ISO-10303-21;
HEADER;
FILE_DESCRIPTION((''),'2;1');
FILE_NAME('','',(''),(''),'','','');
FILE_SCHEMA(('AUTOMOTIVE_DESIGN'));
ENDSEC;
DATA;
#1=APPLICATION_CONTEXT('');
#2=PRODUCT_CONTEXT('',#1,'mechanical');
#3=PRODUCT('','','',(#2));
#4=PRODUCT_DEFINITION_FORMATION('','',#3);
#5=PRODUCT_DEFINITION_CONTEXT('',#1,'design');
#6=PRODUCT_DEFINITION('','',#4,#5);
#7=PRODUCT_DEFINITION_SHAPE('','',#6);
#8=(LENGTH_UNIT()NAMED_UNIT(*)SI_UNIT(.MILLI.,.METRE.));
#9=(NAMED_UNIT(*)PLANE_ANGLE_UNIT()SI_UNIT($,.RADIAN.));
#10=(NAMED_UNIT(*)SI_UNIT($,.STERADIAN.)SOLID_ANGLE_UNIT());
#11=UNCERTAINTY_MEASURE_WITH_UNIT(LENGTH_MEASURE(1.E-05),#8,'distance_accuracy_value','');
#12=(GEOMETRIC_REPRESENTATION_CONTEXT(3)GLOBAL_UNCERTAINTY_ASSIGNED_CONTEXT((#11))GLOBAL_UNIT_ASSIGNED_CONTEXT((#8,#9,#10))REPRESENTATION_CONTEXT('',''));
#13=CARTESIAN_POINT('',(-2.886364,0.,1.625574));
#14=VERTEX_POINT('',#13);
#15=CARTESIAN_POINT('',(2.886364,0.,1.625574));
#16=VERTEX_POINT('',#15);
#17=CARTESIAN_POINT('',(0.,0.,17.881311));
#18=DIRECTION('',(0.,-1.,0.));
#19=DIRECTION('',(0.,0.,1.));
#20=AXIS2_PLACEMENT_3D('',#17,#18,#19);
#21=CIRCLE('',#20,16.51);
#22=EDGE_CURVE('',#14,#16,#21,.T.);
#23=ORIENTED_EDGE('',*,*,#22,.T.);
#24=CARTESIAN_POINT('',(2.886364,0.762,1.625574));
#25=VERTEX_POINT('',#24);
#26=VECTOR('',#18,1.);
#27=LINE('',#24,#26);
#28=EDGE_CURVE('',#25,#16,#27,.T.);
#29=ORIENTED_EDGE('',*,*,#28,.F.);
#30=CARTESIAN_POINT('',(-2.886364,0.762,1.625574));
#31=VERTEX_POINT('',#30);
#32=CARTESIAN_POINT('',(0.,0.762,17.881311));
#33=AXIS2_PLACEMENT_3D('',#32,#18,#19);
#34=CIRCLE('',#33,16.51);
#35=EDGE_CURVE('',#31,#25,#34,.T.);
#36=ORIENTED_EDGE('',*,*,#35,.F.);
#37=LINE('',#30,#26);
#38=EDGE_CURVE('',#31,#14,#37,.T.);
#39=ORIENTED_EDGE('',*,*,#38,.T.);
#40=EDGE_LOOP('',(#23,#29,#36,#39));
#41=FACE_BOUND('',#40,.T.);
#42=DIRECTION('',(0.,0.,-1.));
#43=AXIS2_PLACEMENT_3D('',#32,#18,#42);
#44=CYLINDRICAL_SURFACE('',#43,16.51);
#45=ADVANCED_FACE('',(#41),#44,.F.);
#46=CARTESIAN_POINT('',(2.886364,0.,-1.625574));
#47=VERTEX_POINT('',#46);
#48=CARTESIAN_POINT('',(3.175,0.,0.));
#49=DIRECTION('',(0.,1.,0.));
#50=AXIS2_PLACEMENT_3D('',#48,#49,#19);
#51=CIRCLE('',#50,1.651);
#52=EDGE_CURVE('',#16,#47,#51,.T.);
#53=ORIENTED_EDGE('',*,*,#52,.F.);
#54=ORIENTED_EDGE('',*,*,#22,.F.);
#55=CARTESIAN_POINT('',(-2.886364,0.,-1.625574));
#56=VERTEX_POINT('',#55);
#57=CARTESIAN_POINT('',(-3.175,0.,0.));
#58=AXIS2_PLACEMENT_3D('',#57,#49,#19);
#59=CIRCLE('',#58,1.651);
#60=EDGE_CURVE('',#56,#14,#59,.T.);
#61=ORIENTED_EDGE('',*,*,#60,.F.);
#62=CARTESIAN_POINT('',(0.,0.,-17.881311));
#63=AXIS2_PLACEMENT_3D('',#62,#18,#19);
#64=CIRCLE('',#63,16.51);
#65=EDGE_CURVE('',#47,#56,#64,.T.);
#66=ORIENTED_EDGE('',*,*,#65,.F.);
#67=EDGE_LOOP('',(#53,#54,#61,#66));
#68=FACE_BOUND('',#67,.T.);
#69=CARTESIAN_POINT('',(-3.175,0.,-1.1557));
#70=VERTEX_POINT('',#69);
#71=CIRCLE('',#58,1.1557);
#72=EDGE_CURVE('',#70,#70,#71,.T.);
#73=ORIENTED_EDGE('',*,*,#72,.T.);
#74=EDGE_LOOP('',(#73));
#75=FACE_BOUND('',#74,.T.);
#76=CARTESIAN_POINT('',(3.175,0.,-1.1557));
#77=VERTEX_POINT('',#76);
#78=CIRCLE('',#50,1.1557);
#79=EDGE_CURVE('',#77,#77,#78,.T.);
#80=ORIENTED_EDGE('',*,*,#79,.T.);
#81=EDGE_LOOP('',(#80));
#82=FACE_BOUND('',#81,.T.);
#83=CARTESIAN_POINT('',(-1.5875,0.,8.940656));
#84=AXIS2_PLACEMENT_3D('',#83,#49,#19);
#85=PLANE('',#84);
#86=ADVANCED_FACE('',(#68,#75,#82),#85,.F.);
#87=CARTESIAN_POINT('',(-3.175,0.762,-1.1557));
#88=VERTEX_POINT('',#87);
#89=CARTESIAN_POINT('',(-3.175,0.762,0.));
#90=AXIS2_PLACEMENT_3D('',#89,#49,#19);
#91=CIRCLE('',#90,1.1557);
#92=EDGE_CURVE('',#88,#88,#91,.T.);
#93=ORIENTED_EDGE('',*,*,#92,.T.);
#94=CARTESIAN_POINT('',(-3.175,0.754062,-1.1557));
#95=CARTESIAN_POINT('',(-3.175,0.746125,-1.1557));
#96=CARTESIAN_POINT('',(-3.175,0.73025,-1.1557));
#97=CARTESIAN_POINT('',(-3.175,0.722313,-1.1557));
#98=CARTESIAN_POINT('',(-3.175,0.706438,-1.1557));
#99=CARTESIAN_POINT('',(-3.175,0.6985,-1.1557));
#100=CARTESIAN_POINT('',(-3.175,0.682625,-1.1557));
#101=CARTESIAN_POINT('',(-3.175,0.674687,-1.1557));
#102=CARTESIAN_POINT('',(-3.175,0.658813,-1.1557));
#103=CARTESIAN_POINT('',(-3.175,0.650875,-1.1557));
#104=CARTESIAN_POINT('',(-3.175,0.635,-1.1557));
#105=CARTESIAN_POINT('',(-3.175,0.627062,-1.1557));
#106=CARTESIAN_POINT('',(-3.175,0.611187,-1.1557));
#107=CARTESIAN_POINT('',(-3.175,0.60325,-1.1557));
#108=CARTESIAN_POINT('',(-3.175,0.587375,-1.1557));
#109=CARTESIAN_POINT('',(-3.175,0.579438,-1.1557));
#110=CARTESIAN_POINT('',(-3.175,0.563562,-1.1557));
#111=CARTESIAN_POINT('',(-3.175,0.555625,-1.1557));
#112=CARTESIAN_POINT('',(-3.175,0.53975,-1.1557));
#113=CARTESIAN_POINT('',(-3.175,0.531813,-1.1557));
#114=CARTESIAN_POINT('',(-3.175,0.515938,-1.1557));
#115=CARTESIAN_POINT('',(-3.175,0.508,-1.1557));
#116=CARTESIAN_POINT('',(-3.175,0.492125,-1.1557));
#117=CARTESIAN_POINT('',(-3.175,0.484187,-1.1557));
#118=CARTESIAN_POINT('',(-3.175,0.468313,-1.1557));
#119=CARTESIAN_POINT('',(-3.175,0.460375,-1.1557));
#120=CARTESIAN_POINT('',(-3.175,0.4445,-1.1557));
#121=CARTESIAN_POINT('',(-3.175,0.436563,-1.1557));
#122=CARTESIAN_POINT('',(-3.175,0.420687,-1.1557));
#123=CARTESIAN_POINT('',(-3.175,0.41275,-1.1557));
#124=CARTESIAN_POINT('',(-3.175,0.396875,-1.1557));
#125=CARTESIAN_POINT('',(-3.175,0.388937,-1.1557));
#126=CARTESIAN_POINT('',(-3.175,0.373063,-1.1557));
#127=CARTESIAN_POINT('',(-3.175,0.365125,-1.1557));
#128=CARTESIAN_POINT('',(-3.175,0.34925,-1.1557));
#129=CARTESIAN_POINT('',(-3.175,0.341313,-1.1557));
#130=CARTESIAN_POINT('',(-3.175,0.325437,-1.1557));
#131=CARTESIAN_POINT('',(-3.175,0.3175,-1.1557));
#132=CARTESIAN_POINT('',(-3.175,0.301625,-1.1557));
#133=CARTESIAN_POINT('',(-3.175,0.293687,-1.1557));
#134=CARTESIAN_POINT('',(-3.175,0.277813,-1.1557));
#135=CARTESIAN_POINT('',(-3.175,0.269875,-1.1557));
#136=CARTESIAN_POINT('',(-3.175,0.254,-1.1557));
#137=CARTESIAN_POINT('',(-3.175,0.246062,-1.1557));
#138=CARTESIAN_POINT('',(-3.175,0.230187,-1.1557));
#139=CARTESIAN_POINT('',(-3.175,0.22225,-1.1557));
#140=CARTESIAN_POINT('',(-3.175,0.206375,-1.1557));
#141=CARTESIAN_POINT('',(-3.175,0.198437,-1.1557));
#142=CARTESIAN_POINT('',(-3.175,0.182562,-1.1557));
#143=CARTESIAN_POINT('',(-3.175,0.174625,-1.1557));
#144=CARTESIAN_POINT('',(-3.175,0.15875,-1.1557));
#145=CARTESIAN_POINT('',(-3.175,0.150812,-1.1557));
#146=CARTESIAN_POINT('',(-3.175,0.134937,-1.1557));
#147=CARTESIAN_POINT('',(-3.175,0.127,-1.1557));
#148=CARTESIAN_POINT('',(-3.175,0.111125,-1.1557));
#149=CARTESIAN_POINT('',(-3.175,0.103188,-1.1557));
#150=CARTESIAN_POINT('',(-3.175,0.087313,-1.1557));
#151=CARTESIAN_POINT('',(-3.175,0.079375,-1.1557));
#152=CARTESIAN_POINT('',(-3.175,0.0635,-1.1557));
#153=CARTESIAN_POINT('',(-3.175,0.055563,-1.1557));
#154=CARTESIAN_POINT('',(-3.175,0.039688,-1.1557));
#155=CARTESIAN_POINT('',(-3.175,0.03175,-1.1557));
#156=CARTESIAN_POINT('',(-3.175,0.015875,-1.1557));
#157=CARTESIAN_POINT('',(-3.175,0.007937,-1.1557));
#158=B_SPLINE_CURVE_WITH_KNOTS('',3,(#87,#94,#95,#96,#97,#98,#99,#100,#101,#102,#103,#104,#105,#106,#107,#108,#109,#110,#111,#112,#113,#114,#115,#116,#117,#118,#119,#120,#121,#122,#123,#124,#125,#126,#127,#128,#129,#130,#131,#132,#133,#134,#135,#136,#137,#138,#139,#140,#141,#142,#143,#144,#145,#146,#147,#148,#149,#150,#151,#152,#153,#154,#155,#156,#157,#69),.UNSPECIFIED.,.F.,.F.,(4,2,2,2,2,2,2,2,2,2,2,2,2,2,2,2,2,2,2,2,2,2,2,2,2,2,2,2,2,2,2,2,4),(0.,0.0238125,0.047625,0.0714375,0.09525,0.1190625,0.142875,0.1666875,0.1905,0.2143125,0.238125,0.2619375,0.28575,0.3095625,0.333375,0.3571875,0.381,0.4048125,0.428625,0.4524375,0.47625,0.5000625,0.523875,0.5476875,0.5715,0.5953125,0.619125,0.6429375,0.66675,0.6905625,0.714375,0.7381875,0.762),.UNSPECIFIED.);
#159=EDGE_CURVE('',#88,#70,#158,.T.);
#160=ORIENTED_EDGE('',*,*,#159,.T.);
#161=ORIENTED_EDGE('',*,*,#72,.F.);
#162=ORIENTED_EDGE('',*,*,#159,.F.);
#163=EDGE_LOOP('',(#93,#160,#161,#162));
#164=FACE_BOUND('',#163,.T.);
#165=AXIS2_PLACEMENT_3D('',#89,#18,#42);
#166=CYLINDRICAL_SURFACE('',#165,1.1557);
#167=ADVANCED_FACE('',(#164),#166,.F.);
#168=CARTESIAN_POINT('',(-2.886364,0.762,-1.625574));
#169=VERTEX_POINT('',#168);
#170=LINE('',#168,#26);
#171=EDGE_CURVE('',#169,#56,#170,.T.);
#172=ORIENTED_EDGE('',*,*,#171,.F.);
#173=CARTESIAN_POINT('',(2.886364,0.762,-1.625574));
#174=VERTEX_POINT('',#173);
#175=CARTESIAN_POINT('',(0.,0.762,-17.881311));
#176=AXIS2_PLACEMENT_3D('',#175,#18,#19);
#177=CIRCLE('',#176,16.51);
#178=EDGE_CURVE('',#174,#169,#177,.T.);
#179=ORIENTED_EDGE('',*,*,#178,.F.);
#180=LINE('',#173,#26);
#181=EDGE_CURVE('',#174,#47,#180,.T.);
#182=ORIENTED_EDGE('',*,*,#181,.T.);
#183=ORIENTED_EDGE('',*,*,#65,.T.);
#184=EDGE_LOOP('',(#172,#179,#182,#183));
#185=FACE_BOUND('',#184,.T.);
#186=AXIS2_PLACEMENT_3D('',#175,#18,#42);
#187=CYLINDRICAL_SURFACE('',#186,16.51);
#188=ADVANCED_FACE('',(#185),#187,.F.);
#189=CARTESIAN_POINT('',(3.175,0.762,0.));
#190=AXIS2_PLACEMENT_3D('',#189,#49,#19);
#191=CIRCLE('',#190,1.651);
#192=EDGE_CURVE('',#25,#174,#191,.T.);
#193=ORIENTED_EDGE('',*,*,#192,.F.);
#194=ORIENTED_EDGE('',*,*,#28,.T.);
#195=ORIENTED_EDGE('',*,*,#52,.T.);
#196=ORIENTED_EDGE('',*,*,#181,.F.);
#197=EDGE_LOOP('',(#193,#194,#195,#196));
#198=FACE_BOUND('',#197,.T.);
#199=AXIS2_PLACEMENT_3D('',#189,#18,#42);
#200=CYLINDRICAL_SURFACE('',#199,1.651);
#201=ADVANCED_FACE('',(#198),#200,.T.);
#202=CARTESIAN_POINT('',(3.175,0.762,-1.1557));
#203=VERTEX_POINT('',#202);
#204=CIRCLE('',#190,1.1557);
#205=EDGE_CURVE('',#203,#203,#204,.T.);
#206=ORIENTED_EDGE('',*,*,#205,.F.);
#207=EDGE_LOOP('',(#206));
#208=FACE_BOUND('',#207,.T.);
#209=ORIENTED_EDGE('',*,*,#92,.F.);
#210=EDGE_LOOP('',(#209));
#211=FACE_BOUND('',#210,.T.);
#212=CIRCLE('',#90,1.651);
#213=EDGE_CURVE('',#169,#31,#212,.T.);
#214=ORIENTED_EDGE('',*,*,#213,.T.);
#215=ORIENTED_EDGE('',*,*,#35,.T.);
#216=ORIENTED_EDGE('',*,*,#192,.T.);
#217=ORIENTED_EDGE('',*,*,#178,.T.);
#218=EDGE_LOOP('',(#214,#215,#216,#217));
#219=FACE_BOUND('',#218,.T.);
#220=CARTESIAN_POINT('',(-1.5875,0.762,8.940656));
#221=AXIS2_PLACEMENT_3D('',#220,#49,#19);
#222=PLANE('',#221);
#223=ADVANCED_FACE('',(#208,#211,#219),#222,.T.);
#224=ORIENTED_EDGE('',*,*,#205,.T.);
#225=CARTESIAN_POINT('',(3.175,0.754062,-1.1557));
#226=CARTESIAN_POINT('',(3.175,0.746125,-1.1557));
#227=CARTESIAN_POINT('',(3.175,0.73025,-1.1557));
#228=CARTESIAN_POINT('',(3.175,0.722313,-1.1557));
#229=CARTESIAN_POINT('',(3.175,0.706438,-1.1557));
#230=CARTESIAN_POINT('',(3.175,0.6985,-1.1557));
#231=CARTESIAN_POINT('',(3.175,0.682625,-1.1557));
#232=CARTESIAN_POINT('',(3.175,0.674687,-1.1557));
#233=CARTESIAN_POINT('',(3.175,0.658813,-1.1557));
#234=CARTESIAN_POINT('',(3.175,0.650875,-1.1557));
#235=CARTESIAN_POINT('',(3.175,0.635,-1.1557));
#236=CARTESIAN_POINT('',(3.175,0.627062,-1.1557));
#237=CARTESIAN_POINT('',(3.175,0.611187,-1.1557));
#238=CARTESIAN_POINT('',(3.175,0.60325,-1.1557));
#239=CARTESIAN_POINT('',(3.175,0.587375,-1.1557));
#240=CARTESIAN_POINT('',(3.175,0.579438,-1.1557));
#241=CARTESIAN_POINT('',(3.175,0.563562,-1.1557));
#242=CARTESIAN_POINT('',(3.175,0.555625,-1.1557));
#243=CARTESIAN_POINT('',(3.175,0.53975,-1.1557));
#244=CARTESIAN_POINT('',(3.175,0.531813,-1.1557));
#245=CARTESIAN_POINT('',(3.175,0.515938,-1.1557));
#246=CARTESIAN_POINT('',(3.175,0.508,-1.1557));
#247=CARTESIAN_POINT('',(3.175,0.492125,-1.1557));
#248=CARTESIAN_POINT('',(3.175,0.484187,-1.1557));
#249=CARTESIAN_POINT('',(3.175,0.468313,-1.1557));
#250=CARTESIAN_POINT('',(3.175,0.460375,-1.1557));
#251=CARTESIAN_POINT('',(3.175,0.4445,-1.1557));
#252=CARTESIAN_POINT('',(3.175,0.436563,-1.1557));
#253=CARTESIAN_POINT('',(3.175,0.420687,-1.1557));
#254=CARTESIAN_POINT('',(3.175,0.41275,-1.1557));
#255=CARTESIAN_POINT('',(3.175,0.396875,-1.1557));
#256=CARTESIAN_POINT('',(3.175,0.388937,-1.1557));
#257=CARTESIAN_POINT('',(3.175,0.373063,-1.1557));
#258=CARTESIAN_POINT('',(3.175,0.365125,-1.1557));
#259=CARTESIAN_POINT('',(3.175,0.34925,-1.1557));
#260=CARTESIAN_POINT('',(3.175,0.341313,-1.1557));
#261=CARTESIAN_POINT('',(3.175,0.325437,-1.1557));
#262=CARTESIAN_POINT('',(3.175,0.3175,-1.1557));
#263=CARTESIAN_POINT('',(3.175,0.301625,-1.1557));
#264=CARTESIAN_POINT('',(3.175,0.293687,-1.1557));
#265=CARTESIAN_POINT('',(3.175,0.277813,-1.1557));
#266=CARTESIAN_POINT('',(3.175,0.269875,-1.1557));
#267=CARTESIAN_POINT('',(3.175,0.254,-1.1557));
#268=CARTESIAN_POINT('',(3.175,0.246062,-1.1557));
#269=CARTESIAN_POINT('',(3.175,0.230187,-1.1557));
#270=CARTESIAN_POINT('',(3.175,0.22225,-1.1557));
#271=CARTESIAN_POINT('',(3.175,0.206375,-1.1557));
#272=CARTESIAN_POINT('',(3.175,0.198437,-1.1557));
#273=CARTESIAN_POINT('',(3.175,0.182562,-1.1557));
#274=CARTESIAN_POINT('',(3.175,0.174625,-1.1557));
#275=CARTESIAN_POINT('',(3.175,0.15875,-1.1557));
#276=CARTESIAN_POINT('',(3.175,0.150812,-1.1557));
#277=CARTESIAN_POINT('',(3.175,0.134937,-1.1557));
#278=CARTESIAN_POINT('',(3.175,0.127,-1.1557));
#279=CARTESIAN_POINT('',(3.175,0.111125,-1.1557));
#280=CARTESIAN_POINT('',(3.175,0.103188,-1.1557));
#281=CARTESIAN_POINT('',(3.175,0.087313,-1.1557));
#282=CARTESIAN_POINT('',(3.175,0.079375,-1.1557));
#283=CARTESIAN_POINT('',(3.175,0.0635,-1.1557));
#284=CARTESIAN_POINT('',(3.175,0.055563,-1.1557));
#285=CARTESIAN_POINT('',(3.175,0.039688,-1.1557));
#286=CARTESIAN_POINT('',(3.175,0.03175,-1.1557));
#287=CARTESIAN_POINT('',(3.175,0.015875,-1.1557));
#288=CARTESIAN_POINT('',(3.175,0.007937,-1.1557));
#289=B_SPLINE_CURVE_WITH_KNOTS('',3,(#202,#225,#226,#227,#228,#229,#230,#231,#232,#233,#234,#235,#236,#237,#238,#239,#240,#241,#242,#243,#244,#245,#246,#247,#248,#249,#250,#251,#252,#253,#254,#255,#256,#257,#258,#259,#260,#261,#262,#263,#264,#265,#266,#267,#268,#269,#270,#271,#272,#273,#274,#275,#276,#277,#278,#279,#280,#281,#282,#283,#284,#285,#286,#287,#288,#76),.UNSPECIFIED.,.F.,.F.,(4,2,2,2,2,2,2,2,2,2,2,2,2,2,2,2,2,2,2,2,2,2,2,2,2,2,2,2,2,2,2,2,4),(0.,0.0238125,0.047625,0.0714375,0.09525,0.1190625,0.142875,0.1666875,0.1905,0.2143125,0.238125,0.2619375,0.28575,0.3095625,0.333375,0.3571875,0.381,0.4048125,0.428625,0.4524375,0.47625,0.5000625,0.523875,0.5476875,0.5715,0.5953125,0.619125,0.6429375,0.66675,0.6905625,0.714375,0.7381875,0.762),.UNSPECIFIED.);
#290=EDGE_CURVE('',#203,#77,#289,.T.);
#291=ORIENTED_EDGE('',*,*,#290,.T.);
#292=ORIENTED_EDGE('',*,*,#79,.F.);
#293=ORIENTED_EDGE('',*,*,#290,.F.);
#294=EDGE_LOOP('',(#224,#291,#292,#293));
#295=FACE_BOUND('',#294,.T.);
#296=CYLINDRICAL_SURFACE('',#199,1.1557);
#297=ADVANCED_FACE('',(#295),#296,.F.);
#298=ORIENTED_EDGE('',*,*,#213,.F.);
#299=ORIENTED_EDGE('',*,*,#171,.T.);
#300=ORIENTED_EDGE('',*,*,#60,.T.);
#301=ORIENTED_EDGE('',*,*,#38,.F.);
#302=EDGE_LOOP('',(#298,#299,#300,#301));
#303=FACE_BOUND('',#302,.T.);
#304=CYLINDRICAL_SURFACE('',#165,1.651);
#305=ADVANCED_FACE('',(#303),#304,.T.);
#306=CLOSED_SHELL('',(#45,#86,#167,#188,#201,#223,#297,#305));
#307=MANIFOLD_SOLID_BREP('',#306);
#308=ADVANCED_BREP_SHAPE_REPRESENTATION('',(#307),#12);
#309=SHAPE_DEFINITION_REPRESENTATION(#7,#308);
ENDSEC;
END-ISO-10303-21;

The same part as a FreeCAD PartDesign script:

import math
import FreeCAD as App
import Part
import Sketcher

V = App.Vector
Q = App.Units.Quantity

doc = App.newDocument("Part")
params = doc.addObject("Spreadsheet::Sheet", "Params")
for row, (alias, value) in enumerate([
    ("sketch1_radius", "0.65 in"),
    ("sketch1_diameter", "0.091 in"),
    ("sketch1_radius2", "0.065 in"),
    ("pad1_length", "0.03 in"),
], start=1):
    params.set(f"A{row}", alias)
    params.set(f"B{row}", "=" + value)
    params.setAlias(f"B{row}", alias)

body = doc.addObject("PartDesign::Body", "Body")

# Sketch on XZ plane
sketch1 = body.newObject("Sketcher::SketchObject", "Sketch")
sketch1.AttachmentSupport = (doc.getObject("XZ_Plane"), [""])
sketch1.MapMode = "FlatFace"
sketch1.addGeometry([
    Part.ArcOfCircle(Part.Circle(V(-3.175, 0, 0), V(0, 0, 1), 1.651), math.radians(79.931515), math.radians(280.068485)),  # 0
    Part.ArcOfCircle(Part.Circle(V(0, 17.881311, 0), V(0, 0, 1), 16.51), math.radians(-100.068485), math.radians(-79.931515)),  # 1
    Part.ArcOfCircle(Part.Circle(V(3.175, 0, 0), V(0, 0, 1), 1.651), math.radians(-100.068485), math.radians(100.068485)),  # 2
    Part.ArcOfCircle(Part.Circle(V(0, -17.881311, 0), V(0, 0, 1), 16.51), math.radians(79.931515), math.radians(100.068485)),  # 3
    Part.Circle(V(-3.175, 0, 0), V(0, 0, 1), 1.1557),  # 4
    Part.Circle(V(3.175, 0, 0), V(0, 0, 1), 1.1557),  # 5
], False)
sketch1.addConstraint([
    Sketcher.Constraint("Tangent", 0, 1, 1, 1),
    Sketcher.Constraint("Tangent", 1, 2, 2, 2),
    Sketcher.Constraint("Tangent", 2, 1, 3, 1),
    Sketcher.Constraint("Tangent", 3, 2, 0, 2),
    Sketcher.Constraint("Coincident", 4, 3, 0, 3),
    Sketcher.Constraint("Coincident", 5, 3, 2, 3),
    Sketcher.Constraint("Equal", 0, 2),
    Sketcher.Constraint("Equal", 1, 3),
    Sketcher.Constraint("Equal", 4, 5),
    Sketcher.Constraint("Symmetric", 0, 3, 2, 3, -1, 1),
    Sketcher.Constraint("PointOnObject", 0, 3, -1),
    Sketcher.Constraint("Radius", 1, Q("0.65 in")),
    Sketcher.Constraint("Diameter", 4, Q("0.091 in")),
    Sketcher.Constraint("Radius", 0, Q("0.065 in")),
    Sketcher.Constraint("DistanceX", 0, 3, 2, 3, Q("0.25 in")),
])
sketch1.setExpression("Constraints[11]", "Params.sketch1_radius")
sketch1.setExpression("Constraints[12]", "Params.sketch1_diameter")
sketch1.setExpression("Constraints[13]", "Params.sketch1_radius2")
pad1 = body.newObject("PartDesign::Pad", "Pad")
pad1.Profile = sketch1
pad1.setExpression("Length", "Params.pad1_length")
pad1.Reversed = True

doc.recompute()
